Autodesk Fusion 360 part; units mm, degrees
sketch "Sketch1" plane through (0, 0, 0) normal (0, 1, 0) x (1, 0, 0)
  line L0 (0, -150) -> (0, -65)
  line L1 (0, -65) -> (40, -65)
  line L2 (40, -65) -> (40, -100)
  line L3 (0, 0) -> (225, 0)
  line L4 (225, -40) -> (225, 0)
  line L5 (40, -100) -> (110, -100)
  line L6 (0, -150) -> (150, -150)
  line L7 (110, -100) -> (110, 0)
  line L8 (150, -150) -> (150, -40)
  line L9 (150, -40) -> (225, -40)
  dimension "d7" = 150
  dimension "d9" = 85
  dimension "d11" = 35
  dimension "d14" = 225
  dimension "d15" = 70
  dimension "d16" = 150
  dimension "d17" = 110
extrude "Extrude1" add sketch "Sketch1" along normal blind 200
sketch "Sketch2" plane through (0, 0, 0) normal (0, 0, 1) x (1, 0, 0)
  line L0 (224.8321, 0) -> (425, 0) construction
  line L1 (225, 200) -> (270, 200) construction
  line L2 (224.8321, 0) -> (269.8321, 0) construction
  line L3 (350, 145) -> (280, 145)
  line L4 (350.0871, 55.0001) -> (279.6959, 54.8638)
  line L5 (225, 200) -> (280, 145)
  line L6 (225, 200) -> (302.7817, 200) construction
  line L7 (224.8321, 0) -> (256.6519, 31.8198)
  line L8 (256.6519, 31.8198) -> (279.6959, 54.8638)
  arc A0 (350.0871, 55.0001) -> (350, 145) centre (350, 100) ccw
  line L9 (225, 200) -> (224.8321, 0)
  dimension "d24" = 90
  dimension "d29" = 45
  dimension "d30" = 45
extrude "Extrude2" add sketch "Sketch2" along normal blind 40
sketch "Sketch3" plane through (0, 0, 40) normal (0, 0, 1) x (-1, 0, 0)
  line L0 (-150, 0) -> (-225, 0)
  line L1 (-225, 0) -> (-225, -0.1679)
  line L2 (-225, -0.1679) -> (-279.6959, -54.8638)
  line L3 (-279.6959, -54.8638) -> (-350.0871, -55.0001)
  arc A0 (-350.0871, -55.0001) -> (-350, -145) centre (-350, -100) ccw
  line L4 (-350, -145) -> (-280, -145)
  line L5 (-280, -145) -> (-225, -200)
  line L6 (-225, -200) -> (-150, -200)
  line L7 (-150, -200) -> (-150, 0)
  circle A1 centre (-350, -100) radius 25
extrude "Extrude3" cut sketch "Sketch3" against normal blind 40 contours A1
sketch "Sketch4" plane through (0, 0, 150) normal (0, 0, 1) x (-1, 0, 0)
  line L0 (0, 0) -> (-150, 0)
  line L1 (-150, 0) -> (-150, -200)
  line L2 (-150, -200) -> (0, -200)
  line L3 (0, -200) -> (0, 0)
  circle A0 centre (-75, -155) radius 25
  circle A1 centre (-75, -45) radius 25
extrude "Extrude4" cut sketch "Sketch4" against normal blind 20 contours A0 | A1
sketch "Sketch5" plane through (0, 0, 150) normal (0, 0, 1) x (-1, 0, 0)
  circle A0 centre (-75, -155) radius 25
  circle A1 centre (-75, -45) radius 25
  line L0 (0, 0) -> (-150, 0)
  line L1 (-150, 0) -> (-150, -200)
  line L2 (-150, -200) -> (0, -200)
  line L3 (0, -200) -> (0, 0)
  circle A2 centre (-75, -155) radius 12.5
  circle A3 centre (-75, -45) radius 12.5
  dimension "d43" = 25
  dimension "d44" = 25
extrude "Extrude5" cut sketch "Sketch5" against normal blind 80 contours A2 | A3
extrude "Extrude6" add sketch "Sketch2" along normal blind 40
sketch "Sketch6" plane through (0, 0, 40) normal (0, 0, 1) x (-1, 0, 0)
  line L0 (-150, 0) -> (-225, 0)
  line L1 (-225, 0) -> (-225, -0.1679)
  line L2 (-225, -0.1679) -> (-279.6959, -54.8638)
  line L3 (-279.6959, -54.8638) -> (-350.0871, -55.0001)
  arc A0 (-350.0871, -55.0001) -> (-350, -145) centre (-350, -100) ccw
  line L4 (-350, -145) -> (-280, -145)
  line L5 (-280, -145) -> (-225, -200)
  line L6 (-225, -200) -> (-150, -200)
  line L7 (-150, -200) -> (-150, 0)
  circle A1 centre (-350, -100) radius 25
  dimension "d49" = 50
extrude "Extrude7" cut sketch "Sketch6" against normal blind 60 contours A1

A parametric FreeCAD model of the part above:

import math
import FreeCAD as App
import Part
import Sketcher

V = App.Vector
Q = App.Units.Quantity


def add_polygon(sketch, points):
    """Adds a closed chain of lines whose ends are joined by coincident constraints."""
    first, n = sketch.GeometryCount, len(points)
    for a, b in zip(points, points[1:] + points[:1]):
        sketch.addGeometry(Part.LineSegment(App.Vector(*a, 0), App.Vector(*b, 0)), False)
    for i in range(n):
        sketch.addConstraint(Sketcher.Constraint("Coincident", first + i, 2, first + (i + 1) % n, 1))

doc = App.newDocument("Part")
body = doc.addObject("PartDesign::Body", "Body")

# Sketch on XZ plane
sketch1 = body.newObject("Sketcher::SketchObject", "Sketch")
sketch1.AttachmentSupport = (doc.getObject("XZ_Plane"), [""])
sketch1.MapMode = "FlatFace"
add_polygon(sketch1, [(0, 65), (0, 150), (150, 150), (150, 40), (225, 40), (225, 0), (110, 0), (110, 100), (40, 100), (40, 65)])  # lines 0-9
sketch1.addConstraint([
    Sketcher.Constraint("Vertical", 0),
    Sketcher.Constraint("Horizontal", 1),
    Sketcher.Constraint("Vertical", 2),
    Sketcher.Constraint("Horizontal", 3),
    Sketcher.Constraint("Vertical", 4),
    Sketcher.Constraint("Horizontal", 5),
    Sketcher.Constraint("Vertical", 6),
    Sketcher.Constraint("Horizontal", 7),
    Sketcher.Constraint("Vertical", 8),
    Sketcher.Constraint("Horizontal", 9),
    Sketcher.Constraint("PointOnObject", 0, 2, -2),
    Sketcher.Constraint("PointOnObject", 4, 2, -1),
    Sketcher.Constraint("Equal", 9, 4),
    Sketcher.Constraint("DistanceX", 1, 1, 1, 2, Q("150 mm")),
    Sketcher.Constraint("DistanceX", 7, 2, 7, 1, Q("70 mm")),
    Sketcher.Constraint("DistanceY", 0, 1, 0, 2, Q("85 mm")),
    Sketcher.Constraint("DistanceY", 2, 2, 2, 1, Q("110 mm")),
    Sketcher.Constraint("DistanceY", 8, 2, 8, 1, Q("35 mm")),
    Sketcher.Constraint("DistanceY", -1, 1, 0, 2, Q("150 mm")),
    Sketcher.Constraint("DistanceX", -1, 1, 3, 2, Q("225 mm")),
])
pad1 = body.newObject("PartDesign::Pad", "Pad")
pad1.Profile = sketch1
pad1.Length = 200
pad1.Reversed = True

# Sketch on XY plane
sketch2 = body.newObject("Sketcher::SketchObject", "Sketch001")
sketch2.AttachmentSupport = (doc.getObject("XY_Plane"), [""])
sketch2.MapMode = "FlatFace"
sketch2.addGeometry([
    Part.ArcOfCircle(Part.Circle(V(350, 100, 0), V(0, 0, 1), 45), math.radians(-90), math.radians(90)),  # 0
    Part.LineSegment(V(350, 145, 0), V(280, 145, 0)),  # 1
    Part.LineSegment(V(280, 145, 0), V(225, 200, 0)),  # 2
    Part.LineSegment(V(225, 200, 0), V(225, 0, 0)),  # 3
    Part.LineSegment(V(225, 0, 0), V(280, 55, 0)),  # 4
    Part.LineSegment(V(280, 55, 0), V(350, 55, 0)),  # 5
], False)
sketch2.addConstraint([
    Sketcher.Constraint("Tangent", 0, 2, 1, 1),
    Sketcher.Constraint("Coincident", 1, 2, 2, 1),
    Sketcher.Constraint("Coincident", 2, 2, 3, 1),
    Sketcher.Constraint("Coincident", 3, 2, 4, 1),
    Sketcher.Constraint("Coincident", 4, 2, 5, 1),
    Sketcher.Constraint("Tangent", 5, 2, 0, 1),
    Sketcher.Constraint("Horizontal", 1),
    Sketcher.Constraint("PointOnObject", 3, 2, -1),
    Sketcher.Constraint("Perpendicular", 2, 4),
    Sketcher.Constraint("Radius", 0, Q("45 mm")),
    Sketcher.Constraint("Angle", 4, Q("45 deg")),
    Sketcher.Constraint("DistanceX", 1, 2, 1, 1, Q("70 mm")),
    Sketcher.Constraint("Distance", 3, Q("200 mm")),
    Sketcher.Constraint("DistanceX", -1, 1, 0, 3, Q("350 mm")),
    Sketcher.Constraint("DistanceY", -1, 1, 0, 3, Q("100 mm")),
    Sketcher.Constraint("Angle", 5, Q("0.111 deg")),
    Sketcher.Constraint("DistanceX", -1, 1, 3, 2, Q("224.832 mm")),
])
pad2 = body.newObject("PartDesign::Pad", "Pad001")
pad2.Profile = sketch2
pad2.Length = 40

# Sketch on XY plane
sketch3 = body.newObject("Sketcher::SketchObject", "Sketch002")
sketch3.AttachmentSupport = (doc.getObject("XY_Plane"), [""])
sketch3.MapMode = "FlatFace"
sketch3.AttachmentOffset = App.Placement(V(0, 0, 40), App.Rotation())
sketch3.addGeometry(Part.Circle(V(350, 100, 0), V(0, 0, 1), 25), False)
sketch3.addConstraint([
    Sketcher.Constraint("Diameter", 0, Q("50 mm")),
    Sketcher.Constraint("DistanceX", -1, 1, 0, 3, Q("350 mm")),
    Sketcher.Constraint("DistanceY", -1, 1, 0, 3, Q("100 mm")),
])
pocket1 = body.newObject("PartDesign::Pocket", "Pocket")
pocket1.Profile = sketch3
pocket1.Length = 40

# Sketch on XY plane
sketch4 = body.newObject("Sketcher::SketchObject", "Sketch003")
sketch4.AttachmentSupport = (doc.getObject("XY_Plane"), [""])
sketch4.MapMode = "FlatFace"
sketch4.AttachmentOffset = App.Placement(V(0, 0, 150), App.Rotation())
sketch4.addGeometry([
    Part.Circle(V(75, 155, 0), V(0, 0, 1), 25),
    Part.Circle(V(75, 45, 0), V(0, 0, 1), 25),
], False)
sketch4.addConstraint([
    Sketcher.Constraint("Equal", 0, 1),
    Sketcher.Constraint("Vertical", 0, 3, 1, 3),
    Sketcher.Constraint("Diameter", 0, Q("50 mm")),
    Sketcher.Constraint("DistanceX", -1, 1, 0, 3, Q("75 mm")),
    Sketcher.Constraint("DistanceY", -1, 1, 0, 3, Q("155 mm")),
    Sketcher.Constraint("DistanceY", -1, 1, 1, 3, Q("45 mm")),
])
pocket2 = body.newObject("PartDesign::Pocket", "Pocket001")
pocket2.Profile = sketch4
pocket2.Length = 20

# Sketch on XY plane
sketch5 = body.newObject("Sketcher::SketchObject", "Sketch004")
sketch5.AttachmentSupport = (doc.getObject("XY_Plane"), [""])
sketch5.MapMode = "FlatFace"
sketch5.AttachmentOffset = App.Placement(V(0, 0, 150), App.Rotation())
sketch5.addGeometry([
    Part.Circle(V(75, 155, 0), V(0, 0, 1), 12),
    Part.Circle(V(75, 45, 0), V(0, 0, 1), 12),
], False)
sketch5.addConstraint([
    Sketcher.Constraint("Equal", 0, 1),
    Sketcher.Constraint("Vertical", 0, 3, 1, 3),
    Sketcher.Constraint("Diameter", 0, Q("25 mm")),
    Sketcher.Constraint("DistanceX", -1, 1, 0, 3, Q("75 mm")),
    Sketcher.Constraint("DistanceY", -1, 1, 0, 3, Q("155 mm")),
    Sketcher.Constraint("DistanceY", -1, 1, 1, 3, Q("45 mm")),
])
pocket3 = body.newObject("PartDesign::Pocket", "Pocket002")
pocket3.Profile = sketch5
pocket3.Length = 80

# Sketch on XY plane
sketch6 = body.newObject("Sketcher::SketchObject", "Sketch005")
sketch6.AttachmentSupport = (doc.getObject("XY_Plane"), [""])
sketch6.MapMode = "FlatFace"
sketch6.addGeometry([
    Part.ArcOfCircle(Part.Circle(V(350, 100, 0), V(0, 0, 1), 45), math.radians(-90), math.radians(90)),  # 0
    Part.LineSegment(V(350, 145, 0), V(280, 145, 0)),  # 1
    Part.LineSegment(V(280, 145, 0), V(225, 200, 0)),  # 2
    Part.LineSegment(V(225, 200, 0), V(225, 0, 0)),  # 3
    Part.LineSegment(V(225, 0, 0), V(280, 55, 0)),  # 4
    Part.LineSegment(V(280, 55, 0), V(350, 55, 0)),  # 5
], False)
sketch6.addConstraint([
    Sketcher.Constraint("Tangent", 0, 2, 1, 1),
    Sketcher.Constraint("Coincident", 1, 2, 2, 1),
    Sketcher.Constraint("Coincident", 2, 2, 3, 1),
    Sketcher.Constraint("Coincident", 3, 2, 4, 1),
    Sketcher.Constraint("Coincident", 4, 2, 5, 1),
    Sketcher.Constraint("Tangent", 5, 2, 0, 1),
    Sketcher.Constraint("Horizontal", 1),
    Sketcher.Constraint("PointOnObject", 3, 2, -1),
    Sketcher.Constraint("Perpendicular", 2, 4),
    Sketcher.Constraint("Radius", 0, Q("45 mm")),
    Sketcher.Constraint("Angle", 4, Q("45 deg")),
    Sketcher.Constraint("DistanceX", 1, 2, 1, 1, Q("70 mm")),
    Sketcher.Constraint("Distance", 3, Q("200 mm")),
    Sketcher.Constraint("DistanceX", -1, 1, 0, 3, Q("350 mm")),
    Sketcher.Constraint("DistanceY", -1, 1, 0, 3, Q("100 mm")),
    Sketcher.Constraint("Angle", 5, Q("0.111 deg")),
    Sketcher.Constraint("DistanceX", -1, 1, 3, 2, Q("224.832 mm")),
])
pad3 = body.newObject("PartDesign::Pad", "Pad002")
pad3.Profile = sketch6
pad3.Length = 40

# Sketch on XY plane
sketch7 = body.newObject("Sketcher::SketchObject", "Sketch006")
sketch7.AttachmentSupport = (doc.getObject("XY_Plane"), [""])
sketch7.MapMode = "FlatFace"
sketch7.AttachmentOffset = App.Placement(V(0, 0, 40), App.Rotation())
sketch7.addGeometry(Part.Circle(V(350, 100, 0), V(0, 0, 1), 25), False)
sketch7.addConstraint([
    Sketcher.Constraint("Diameter", 0, Q("50 mm")),
    Sketcher.Constraint("DistanceX", -1, 1, 0, 3, Q("350 mm")),
    Sketcher.Constraint("DistanceY", -1, 1, 0, 3, Q("100 mm")),
])
pocket4 = body.newObject("PartDesign::Pocket", "Pocket003")
pocket4.Profile = sketch7
pocket4.Length = 60

doc.recompute()
